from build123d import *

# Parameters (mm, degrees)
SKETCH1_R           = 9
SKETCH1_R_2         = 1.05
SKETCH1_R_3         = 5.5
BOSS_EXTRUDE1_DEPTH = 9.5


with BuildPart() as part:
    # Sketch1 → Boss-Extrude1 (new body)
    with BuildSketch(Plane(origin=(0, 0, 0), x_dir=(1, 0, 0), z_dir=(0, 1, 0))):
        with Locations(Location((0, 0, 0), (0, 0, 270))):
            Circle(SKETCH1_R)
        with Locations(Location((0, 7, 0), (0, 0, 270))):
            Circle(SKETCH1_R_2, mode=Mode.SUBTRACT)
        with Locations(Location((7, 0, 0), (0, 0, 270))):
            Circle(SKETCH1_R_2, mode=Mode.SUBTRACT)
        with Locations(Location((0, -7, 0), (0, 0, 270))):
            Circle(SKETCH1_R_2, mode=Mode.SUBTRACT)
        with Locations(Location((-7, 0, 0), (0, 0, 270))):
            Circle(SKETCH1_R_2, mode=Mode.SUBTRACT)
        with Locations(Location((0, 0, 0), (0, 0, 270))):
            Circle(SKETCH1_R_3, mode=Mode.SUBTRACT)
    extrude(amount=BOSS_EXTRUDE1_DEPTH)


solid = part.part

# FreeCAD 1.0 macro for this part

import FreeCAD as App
import Part
import Sketcher

V = App.Vector

doc = App.newDocument("Part")
params = doc.addObject("Spreadsheet::Sheet", "Params")
for row, (alias, value) in enumerate([
    ("sketch1_diameter", "18 mm"),
    ("sketch1_diameter2", "11 mm"),
    ("sketch1_diameter3", "2.1 mm"),
    ("pad1_length", "9.5 mm"),
], start=1):
    params.set(f"A{row}", alias)
    params.set(f"B{row}", "=" + value)
    params.setAlias(f"B{row}", alias)

body = doc.addObject("PartDesign::Body", "Body")

sketch1 = body.newObject("Sketcher::SketchObject", "Sketch")
sketch1.AttachmentSupport = (doc.getObject("XZ_Plane"), [""])
sketch1.MapMode = "FlatFace"
sketch1.addGeometry([
    Part.Circle(V(0, 0, 0), V(0, 0, 1), 9),
    Part.Circle(V(0, -7, 0), V(0, 0, 1), 1.1),
    Part.Circle(V(-7, 0, 0), V(0, 0, 1), 1.1),
    Part.Circle(V(7, 0, 0), V(0, 0, 1), 1.1),
    Part.Circle(V(0, 0, 0), V(0, 0, 1), 5.5),
    Part.Circle(V(0, 7, 0), V(0, 0, 1), 1.1),
], False)
sketch1.addConstraint([
    Sketcher.Constraint("Coincident", 0, 3, -1, 1),
    Sketcher.Constraint("Coincident", 4, 3, -1, 1),
    Sketcher.Constraint("Equal", 1, 2),
    Sketcher.Constraint("Equal", 2, 3),
    Sketcher.Constraint("Equal", 3, 5),
    Sketcher.Constraint("Symmetric", 2, 3, 3, 3, -1, 1),
    Sketcher.Constraint("Symmetric", 1, 3, 5, 3, -1, 1),
    Sketcher.Constraint("PointOnObject", 1, 3, -2),
    Sketcher.Constraint("PointOnObject", 2, 3, -1),
    Sketcher.Constraint("Diameter", 0, 18.0),
    Sketcher.Constraint("Diameter", 4, 11.0),
    Sketcher.Constraint("Diameter", 1, 2.1),
    Sketcher.Constraint("DistanceY", 1, 3, -1, 1, 7.0),
    Sketcher.Constraint("DistanceX", 2, 3, -1, 1, 7.0),
])
sketch1.setExpression("Constraints[9]", "Params.sketch1_diameter")
sketch1.setExpression("Constraints[10]", "Params.sketch1_diameter2")
sketch1.setExpression("Constraints[11]", "Params.sketch1_diameter3")
pad1 = body.newObject("PartDesign::Pad", "Pad")
pad1.Profile = sketch1
pad1.setExpression("Length", "Params.pad1_length")
pad1.Reversed = True

doc.recompute()
